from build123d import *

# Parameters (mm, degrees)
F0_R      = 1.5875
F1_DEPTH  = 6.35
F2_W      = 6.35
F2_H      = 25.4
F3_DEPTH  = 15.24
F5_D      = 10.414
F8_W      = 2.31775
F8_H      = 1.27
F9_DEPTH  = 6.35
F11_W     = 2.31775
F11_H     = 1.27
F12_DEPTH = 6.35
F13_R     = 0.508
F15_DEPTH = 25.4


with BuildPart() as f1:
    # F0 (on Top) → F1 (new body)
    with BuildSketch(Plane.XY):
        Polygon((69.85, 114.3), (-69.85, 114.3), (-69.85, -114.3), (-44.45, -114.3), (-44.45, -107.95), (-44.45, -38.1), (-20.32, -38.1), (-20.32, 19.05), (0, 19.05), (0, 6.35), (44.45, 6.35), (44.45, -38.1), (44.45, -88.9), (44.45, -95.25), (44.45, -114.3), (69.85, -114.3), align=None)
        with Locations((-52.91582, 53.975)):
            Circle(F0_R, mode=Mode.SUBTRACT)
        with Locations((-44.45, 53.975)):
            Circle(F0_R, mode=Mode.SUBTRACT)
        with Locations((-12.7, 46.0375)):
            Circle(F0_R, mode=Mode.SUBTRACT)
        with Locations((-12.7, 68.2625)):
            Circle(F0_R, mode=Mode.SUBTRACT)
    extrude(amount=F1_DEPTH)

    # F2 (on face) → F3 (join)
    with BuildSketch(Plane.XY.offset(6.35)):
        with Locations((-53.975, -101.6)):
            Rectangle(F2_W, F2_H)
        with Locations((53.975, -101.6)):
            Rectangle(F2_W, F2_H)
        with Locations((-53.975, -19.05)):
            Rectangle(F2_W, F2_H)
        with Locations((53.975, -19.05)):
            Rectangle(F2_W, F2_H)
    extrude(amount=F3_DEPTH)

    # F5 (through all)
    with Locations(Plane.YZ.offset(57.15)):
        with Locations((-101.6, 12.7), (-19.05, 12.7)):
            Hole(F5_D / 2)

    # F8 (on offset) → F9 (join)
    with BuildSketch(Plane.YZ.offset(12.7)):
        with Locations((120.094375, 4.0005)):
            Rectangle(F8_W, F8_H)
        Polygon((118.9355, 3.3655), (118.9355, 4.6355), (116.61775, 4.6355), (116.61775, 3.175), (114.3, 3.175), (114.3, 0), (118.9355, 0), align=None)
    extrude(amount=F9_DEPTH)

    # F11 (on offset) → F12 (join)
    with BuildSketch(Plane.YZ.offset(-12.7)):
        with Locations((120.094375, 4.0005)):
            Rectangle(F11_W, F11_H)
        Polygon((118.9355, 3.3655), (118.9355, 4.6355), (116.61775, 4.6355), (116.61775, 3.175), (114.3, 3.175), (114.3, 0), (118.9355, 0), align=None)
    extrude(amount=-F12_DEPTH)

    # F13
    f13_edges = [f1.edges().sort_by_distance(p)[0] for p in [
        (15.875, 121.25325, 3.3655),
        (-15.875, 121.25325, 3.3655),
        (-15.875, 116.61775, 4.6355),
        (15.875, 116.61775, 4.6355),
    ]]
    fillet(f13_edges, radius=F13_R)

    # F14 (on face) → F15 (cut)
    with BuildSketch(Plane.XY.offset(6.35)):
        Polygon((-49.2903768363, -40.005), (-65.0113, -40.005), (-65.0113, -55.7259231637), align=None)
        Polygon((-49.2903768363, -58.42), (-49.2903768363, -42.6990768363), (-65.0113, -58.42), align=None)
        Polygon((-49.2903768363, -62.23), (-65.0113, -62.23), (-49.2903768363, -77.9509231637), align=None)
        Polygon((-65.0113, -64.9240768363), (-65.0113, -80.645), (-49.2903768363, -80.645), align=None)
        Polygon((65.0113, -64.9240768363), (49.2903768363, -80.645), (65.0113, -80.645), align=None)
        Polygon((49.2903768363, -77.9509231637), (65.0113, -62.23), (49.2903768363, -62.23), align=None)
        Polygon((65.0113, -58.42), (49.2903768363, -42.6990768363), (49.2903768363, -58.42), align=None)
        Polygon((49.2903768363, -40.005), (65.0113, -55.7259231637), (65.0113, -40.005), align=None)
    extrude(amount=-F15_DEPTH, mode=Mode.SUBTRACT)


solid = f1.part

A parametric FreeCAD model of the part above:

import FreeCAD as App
import Part
import Sketcher
from FreeCAD import Vector
Q = App.Units.Quantity


def edges_at(feature, points):
    """Names of the edges that pass closest to the given points."""
    edges = feature.Shape.Edges
    near = lambda p: min(range(len(edges)), key=lambda i: edges[i].distToShape(Part.Vertex(*p))[0])
    return sorted({f"Edge{near(p) + 1}" for p in points})


def add_polygon(sketch, points):
    """Adds a closed chain of lines whose ends are joined by coincident constraints."""
    first, n = sketch.GeometryCount, len(points)
    for a, b in zip(points, points[1:] + points[:1]):
        sketch.addGeometry(Part.LineSegment(App.Vector(*a, 0), App.Vector(*b, 0)), False)
    for i in range(n):
        sketch.addConstraint(Sketcher.Constraint("Coincident", first + i, 2, first + (i + 1) % n, 1))

doc = App.newDocument("Part")
params = doc.addObject("Spreadsheet::Sheet", "Params")
for row, (alias, value) in enumerate([
    ("sketch1_width", "1 in"),
    ("sketch1_height", "9 in"),
    ("sketch1_height2", "3 in"),
    ("sketch1_diameter", "0.125 in"),
    ("sketch1_width2", "5.5 in"),
    ("pad1_length", "0.25 in"),
    ("sketch2_height", "1 in"),
    ("sketch2_width", "0.25 in"),
    ("pad2_length", "0.6 in"),
    ("sketch3_diameter", "0.41 in"),
    ("hole_diameter", "0.41 in"),
    ("sketch4_height", "0.05 in"),
    ("sketch4_height2", "0.125 in"),
    ("pad3_length", "0.25 in"),
    ("sketch5_height", "0.05 in"),
    ("sketch5_height2", "0.125 in"),
    ("pad4_length", "0.25 in"),
    ("fillet_radius", "0.02 in"),
    ("pocket1_length", "1 in"),
], start=1):
    params.set(f"A{row}", alias)
    params.set(f"B{row}", "=" + value)
    params.setAlias(f"B{row}", alias)

body = doc.addObject("PartDesign::Body", "Body")

# Sketch on XY plane
sketch1 = doc.addObject("Sketcher::SketchObject", "Sketch")
body.addObject(sketch1)
sketch1.AttachmentSupport = (doc.XY_Plane, [""])
sketch1.MapMode = "FlatFace"
add_polygon(sketch1, [(69.8, 114.3), (-69.8, 114.3), (-69.8, -114.3), (-44.5, -114.3), (-44.5, -38.1), (-20.3, -38.1), (-20.3, 19.1), (0, 19.1), (0, 6.3), (44.5, 6.3), (44.5, -114.3), (69.8, -114.3)])  # lines 0-11
sketch1.addGeometry(Part.Circle(Vector(-52.9, 54, 0), Vector(0, 0, 1), 1.6), False)  # 12
sketch1.addGeometry(Part.Circle(Vector(-44.5, 54, 0), Vector(0, 0, 1), 1.6), False)  # 13
sketch1.addGeometry(Part.Circle(Vector(-12.7, 46, 0), Vector(0, 0, 1), 1.6), False)  # 14
sketch1.addGeometry(Part.Circle(Vector(-12.7, 68.3, 0), Vector(0, 0, 1), 1.6), False)  # 15
sketch1.addConstraint(Sketcher.Constraint("Horizontal", 0))
sketch1.addConstraint(Sketcher.Constraint("Vertical", 1))
sketch1.addConstraint(Sketcher.Constraint("Horizontal", 2))
sketch1.addConstraint(Sketcher.Constraint("Vertical", 3))
sketch1.addConstraint(Sketcher.Constraint("Horizontal", 4))
sketch1.addConstraint(Sketcher.Constraint("Vertical", 5))
sketch1.addConstraint(Sketcher.Constraint("Horizontal", 6))
sketch1.addConstraint(Sketcher.Constraint("Vertical", 7))
sketch1.addConstraint(Sketcher.Constraint("Horizontal", 8))
sketch1.addConstraint(Sketcher.Constraint("Vertical", 9))
sketch1.addConstraint(Sketcher.Constraint("Horizontal", 10))
sketch1.addConstraint(Sketcher.Constraint("Vertical", 11))
sketch1.addConstraint(Sketcher.Constraint("Equal", 12, 13))
sketch1.addConstraint(Sketcher.Constraint("Equal", 13, 14))
sketch1.addConstraint(Sketcher.Constraint("Equal", 14, 15))
sketch1.addConstraint(Sketcher.Constraint("Symmetric", 0, 2, 10, 2, -1, 1))
sketch1.addConstraint(Sketcher.Constraint("Symmetric", 2, 2, 9, 2, -2))
sketch1.addConstraint(Sketcher.Constraint("PointOnObject", 6, 2, -2))
sketch1.addConstraint(Sketcher.Constraint("Horizontal", 12, 3, 13, 3))
sketch1.addConstraint(Sketcher.Constraint("Vertical", 14, 3, 15, 3))
sketch1.addConstraint(Sketcher.Constraint("Vertical", 13, 3, 2, 2))
sketch1.addConstraint(Sketcher.Constraint("DistanceX", 2, 1, 2, 2, Q("1 in")))
sketch1.addConstraint(Sketcher.Constraint("DistanceY", 1, 2, 1, 1, Q("9 in")))
sketch1.addConstraint(Sketcher.Constraint("DistanceY", 3, 1, 3, 2, Q("3 in")))
sketch1.addConstraint(Sketcher.Constraint("Diameter", 12, Q("0.125 in")))
sketch1.addConstraint(Sketcher.Constraint("DistanceX", 0, 2, 0, 1, Q("5.5 in")))
sketch1.addConstraint(Sketcher.Constraint("DistanceX", 6, 1, 6, 2, Q("0.8 in")))
sketch1.addConstraint(Sketcher.Constraint("DistanceY", 7, 2, 7, 1, Q("0.5 in")))
sketch1.addConstraint(Sketcher.Constraint("DistanceY", 5, 1, 5, 2, Q("2.25 in")))
sketch1.addConstraint(Sketcher.Constraint("DistanceX", 14, 3, -1, 1, Q("0.5 in")))
sketch1.addConstraint(Sketcher.Constraint("DistanceY", -1, 1, 12, 3, Q("2.125 in")))
sketch1.addConstraint(Sketcher.Constraint("DistanceY", -1, 1, 14, 3, Q("1.8125 in")))
sketch1.addConstraint(Sketcher.Constraint("DistanceY", -1, 1, 15, 3, Q("2.6875 in")))
sketch1.addConstraint(Sketcher.Constraint("DistanceX", 12, 3, -1, 1, Q("2.0833 in")))
sketch1.setExpression("Constraints[33]", "Params.sketch1_width")
sketch1.setExpression("Constraints[34]", "Params.sketch1_height")
sketch1.setExpression("Constraints[35]", "Params.sketch1_height2")
sketch1.setExpression("Constraints[36]", "Params.sketch1_diameter")
sketch1.setExpression("Constraints[37]", "Params.sketch1_width2")
pad1 = doc.addObject("PartDesign::Pad", "Pad")
body.addObject(pad1)
pad1.Profile = sketch1
pad1.setExpression("Length", "Params.pad1_length")

# Sketch on XY plane
sketch2 = doc.addObject("Sketcher::SketchObject", "Sketch001")
body.addObject(sketch2)
sketch2.AttachmentSupport = (doc.XY_Plane, [""])
sketch2.MapMode = "FlatFace"
sketch2.AttachmentOffset = App.Placement(Vector(0, 0, 0.25 * 25.4), App.Rotation())
add_polygon(sketch2, [(-57, -89), (-57, -114), (-51, -114), (-51, -89)])  # lines 0-3
add_polygon(sketch2, [(51, -89), (51, -114), (57, -114), (57, -89)])  # lines 4-7
add_polygon(sketch2, [(-57, -6), (-57, -32), (-51, -32), (-51, -6)])  # lines 8-11
add_polygon(sketch2, [(51, -6), (51, -32), (57, -32), (57, -6)])  # lines 12-15
sketch2.addConstraint(Sketcher.Constraint("Vertical", 0))
sketch2.addConstraint(Sketcher.Constraint("Horizontal", 1))
sketch2.addConstraint(Sketcher.Constraint("Vertical", 2))
sketch2.addConstraint(Sketcher.Constraint("Horizontal", 3))
sketch2.addConstraint(Sketcher.Constraint("Vertical", 4))
sketch2.addConstraint(Sketcher.Constraint("Horizontal", 5))
sketch2.addConstraint(Sketcher.Constraint("Vertical", 6))
sketch2.addConstraint(Sketcher.Constraint("Horizontal", 7))
sketch2.addConstraint(Sketcher.Constraint("Vertical", 8))
sketch2.addConstraint(Sketcher.Constraint("Horizontal", 9))
sketch2.addConstraint(Sketcher.Constraint("Vertical", 10))
sketch2.addConstraint(Sketcher.Constraint("Horizontal", 11))
sketch2.addConstraint(Sketcher.Constraint("Vertical", 12))
sketch2.addConstraint(Sketcher.Constraint("Horizontal", 13))
sketch2.addConstraint(Sketcher.Constraint("Vertical", 14))
sketch2.addConstraint(Sketcher.Constraint("Horizontal", 15))
sketch2.addConstraint(Sketcher.Constraint("Symmetric", 1, 2, 4, 2, -2))
sketch2.addConstraint(Sketcher.Constraint("Symmetric", 3, 2, 6, 2, -2))
sketch2.addConstraint(Sketcher.Constraint("Symmetric", 9, 2, 12, 2, -2))
sketch2.addConstraint(Sketcher.Constraint("Symmetric", 11, 2, 14, 2, -2))
sketch2.addConstraint(Sketcher.Constraint("Vertical", 3, 2, 8, 2))
sketch2.addConstraint(Sketcher.Constraint("Vertical", 2, 2, 9, 2))
sketch2.addConstraint(Sketcher.Constraint("Equal", 6, 8))
sketch2.addConstraint(Sketcher.Constraint("DistanceY", 0, 2, 0, 1, Q("1 in")))
sketch2.addConstraint(Sketcher.Constraint("DistanceX", 1, 2, -1, 1, Q("2 in")))
sketch2.addConstraint(Sketcher.Constraint("DistanceX", 1, 1, 1, 2, Q("0.25 in")))
sketch2.addConstraint(Sketcher.Constraint("DistanceY", 0, 2, -1, 1, Q("4.5 in")))
sketch2.addConstraint(Sketcher.Constraint("DistanceY", 8, 2, -1, 1, Q("1.25 in")))
sketch2.setExpression("Constraints[39]", "Params.sketch2_height")
sketch2.setExpression("Constraints[41]", "Params.sketch2_width")
pad2 = doc.addObject("PartDesign::Pad", "Pad001")
body.addObject(pad2)
pad2.Profile = sketch2
pad2.setExpression("Length", "Params.pad2_length")

# Sketch on YZ plane
sketch3 = doc.addObject("Sketcher::SketchObject", "Sketch002")
body.addObject(sketch3)
sketch3.AttachmentSupport = (doc.YZ_Plane, [""])
sketch3.MapMode = "FlatFace"
sketch3.AttachmentOffset = App.Placement(Vector(0, 0, 2.25 * 25.4), App.Rotation())
sketch3.addGeometry(Part.Circle(Vector(-102, 13, 0), Vector(0, 0, 1), 5), False)
sketch3.addGeometry(Part.Circle(Vector(-19, 13, 0), Vector(0, 0, 1), 5), False)
sketch3.addConstraint(Sketcher.Constraint("Equal", 0, 1))
sketch3.addConstraint(Sketcher.Constraint("Horizontal", 0, 3, 1, 3))
sketch3.addConstraint(Sketcher.Constraint("Diameter", 0, Q("0.41 in")))
sketch3.addConstraint(Sketcher.Constraint("DistanceX", 0, 3, -1, 1, Q("4 in")))
sketch3.addConstraint(Sketcher.Constraint("DistanceY", -1, 1, 0, 3, Q("0.5 in")))
sketch3.addConstraint(Sketcher.Constraint("DistanceX", 1, 3, -1, 1, Q("0.75 in")))
sketch3.setExpression("Constraints[2]", "Params.sketch3_diameter")
doc.recompute()
hole = doc.addObject("PartDesign::Hole", "Hole")
body.addObject(hole)
hole.Profile = sketch3
hole.ThreadType = "None"
hole.setExpression("Diameter", "Params.hole_diameter")
hole.DepthType = "ThroughAll"

# Sketch on YZ plane
sketch4 = doc.addObject("Sketcher::SketchObject", "Sketch003")
body.addObject(sketch4)
sketch4.AttachmentSupport = (doc.YZ_Plane, [""])
sketch4.MapMode = "FlatFace"
sketch4.AttachmentOffset = App.Placement(Vector(0, 0, 0.5 * 25.4), App.Rotation())
add_polygon(sketch4, [(118.9, 3.4), (121.3, 3.4), (121.3, 4.6), (116.6, 4.6), (116.6, 3.2), (114.3, 3.2), (114.3, 0), (118.9, 0)])  # lines 0-7
sketch4.addConstraint(Sketcher.Constraint("Horizontal", 0))
sketch4.addConstraint(Sketcher.Constraint("Vertical", 1))
sketch4.addConstraint(Sketcher.Constraint("Horizontal", 2))
sketch4.addConstraint(Sketcher.Constraint("Vertical", 3))
sketch4.addConstraint(Sketcher.Constraint("Horizontal", 4))
sketch4.addConstraint(Sketcher.Constraint("Vertical", 5))
sketch4.addConstraint(Sketcher.Constraint("Horizontal", 6))
sketch4.addConstraint(Sketcher.Constraint("Vertical", 7))
sketch4.addConstraint(Sketcher.Constraint("PointOnObject", 5, 2, -1))
sketch4.addConstraint(Sketcher.Constraint("Equal", 0, 4))
sketch4.addConstraint(Sketcher.Constraint("DistanceY", 1, 1, 1, 2, Q("0.05 in")))
sketch4.addConstraint(Sketcher.Constraint("DistanceX", -1, 1, 4, 2, Q("4.5 in")))
sketch4.addConstraint(Sketcher.Constraint("DistanceY", 5, 2, 5, 1, Q("0.125 in")))
sketch4.addConstraint(Sketcher.Constraint("DistanceX", 2, 2, 2, 1, Q("0.1825 in")))
sketch4.addConstraint(Sketcher.Constraint("DistanceY", 3, 2, 3, 1, Q("0.0575 in")))
sketch4.addConstraint(Sketcher.Constraint("DistanceX", 0, 1, 0, 2, Q("2.31775 mm")))
sketch4.setExpression("Constraints[18]", "Params.sketch4_height")
sketch4.setExpression("Constraints[20]", "Params.sketch4_height2")
pad3 = doc.addObject("PartDesign::Pad", "Pad002")
body.addObject(pad3)
pad3.Profile = sketch4
pad3.setExpression("Length", "Params.pad3_length")

# Sketch on YZ plane
sketch5 = doc.addObject("Sketcher::SketchObject", "Sketch004")
body.addObject(sketch5)
sketch5.AttachmentSupport = (doc.YZ_Plane, [""])
sketch5.MapMode = "FlatFace"
sketch5.AttachmentOffset = App.Placement(Vector(0, 0, -0.5 * 25.4), App.Rotation())
add_polygon(sketch5, [(118.9, 3.4), (121.3, 3.4), (121.3, 4.6), (116.6, 4.6), (116.6, 3.2), (114.3, 3.2), (114.3, 0), (118.9, 0)])  # lines 0-7
sketch5.addConstraint(Sketcher.Constraint("Horizontal", 0))
sketch5.addConstraint(Sketcher.Constraint("Vertical", 1))
sketch5.addConstraint(Sketcher.Constraint("Horizontal", 2))
sketch5.addConstraint(Sketcher.Constraint("Vertical", 3))
sketch5.addConstraint(Sketcher.Constraint("Horizontal", 4))
sketch5.addConstraint(Sketcher.Constraint("Vertical", 5))
sketch5.addConstraint(Sketcher.Constraint("Horizontal", 6))
sketch5.addConstraint(Sketcher.Constraint("Vertical", 7))
sketch5.addConstraint(Sketcher.Constraint("PointOnObject", 5, 2, -1))
sketch5.addConstraint(Sketcher.Constraint("Equal", 0, 4))
sketch5.addConstraint(Sketcher.Constraint("DistanceY", 1, 1, 1, 2, Q("0.05 in")))
sketch5.addConstraint(Sketcher.Constraint("DistanceX", -1, 1, 4, 2, Q("4.5 in")))
sketch5.addConstraint(Sketcher.Constraint("DistanceY", 5, 2, 5, 1, Q("0.125 in")))
sketch5.addConstraint(Sketcher.Constraint("DistanceX", 2, 2, 2, 1, Q("0.1825 in")))
sketch5.addConstraint(Sketcher.Constraint("DistanceY", 3, 2, 3, 1, Q("0.0575 in")))
sketch5.addConstraint(Sketcher.Constraint("DistanceX", 0, 1, 0, 2, Q("2.31775 mm")))
sketch5.setExpression("Constraints[18]", "Params.sketch5_height")
sketch5.setExpression("Constraints[20]", "Params.sketch5_height2")
pad4 = doc.addObject("PartDesign::Pad", "Pad003")
body.addObject(pad4)
pad4.Profile = sketch5
pad4.setExpression("Length", "Params.pad4_length")
pad4.Reversed = True
doc.recompute()

fillet = doc.addObject("PartDesign::Fillet", "Fillet")
body.addObject(fillet)
fillet.Base = (pad4, edges_at(pad4, [
    (15.875, 121.253, 3.365),
    (-15.875, 121.253, 3.365),
    (-15.875, 116.618, 4.636),
    (15.875, 116.618, 4.636),
]))
fillet.setExpression("Radius", "Params.fillet_radius")

# Sketch on XY plane
sketch6 = doc.addObject("Sketcher::SketchObject", "Sketch005")
body.addObject(sketch6)
sketch6.AttachmentSupport = (doc.XY_Plane, [""])
sketch6.MapMode = "FlatFace"
sketch6.AttachmentOffset = App.Placement(Vector(0, 0, 0.25 * 25.4), App.Rotation())
add_polygon(sketch6, [(-49, -40), (-65, -40), (-65, -56)])  # lines 0-2
add_polygon(sketch6, [(-49, -58), (-49, -43), (-65, -58)])  # lines 3-5
add_polygon(sketch6, [(-49, -62), (-65, -62), (-49, -78)])  # lines 6-8
add_polygon(sketch6, [(-65, -65), (-65, -81), (-49, -81)])  # lines 9-11
add_polygon(sketch6, [(65, -65), (49, -81), (65, -81)])  # lines 12-14
add_polygon(sketch6, [(49, -78), (65, -62), (49, -62)])  # lines 15-17
add_polygon(sketch6, [(65, -58), (49, -43), (49, -58)])  # lines 18-20
add_polygon(sketch6, [(49, -40), (65, -56), (65, -40)])  # lines 21-23
sketch6.addConstraint(Sketcher.Constraint("Horizontal", 0))
sketch6.addConstraint(Sketcher.Constraint("Vertical", 1))
sketch6.addConstraint(Sketcher.Constraint("Vertical", 3))
sketch6.addConstraint(Sketcher.Constraint("Horizontal", 5))
sketch6.addConstraint(Sketcher.Constraint("Horizontal", 6))
sketch6.addConstraint(Sketcher.Constraint("Vertical", 8))
sketch6.addConstraint(Sketcher.Constraint("Vertical", 9))
sketch6.addConstraint(Sketcher.Constraint("Horizontal", 10))
sketch6.addConstraint(Sketcher.Constraint("Horizontal", 13))
sketch6.addConstraint(Sketcher.Constraint("Vertical", 14))
sketch6.addConstraint(Sketcher.Constraint("Horizontal", 16))
sketch6.addConstraint(Sketcher.Constraint("Vertical", 17))
sketch6.addConstraint(Sketcher.Constraint("Vertical", 19))
sketch6.addConstraint(Sketcher.Constraint("Horizontal", 20))
sketch6.addConstraint(Sketcher.Constraint("Vertical", 22))
sketch6.addConstraint(Sketcher.Constraint("Horizontal", 23))
sketch6.addConstraint(Sketcher.Constraint("Symmetric", 10, 2, 12, 2, -2))
sketch6.addConstraint(Sketcher.Constraint("Symmetric", 11, 2, 14, 2, -2))
sketch6.addConstraint(Sketcher.Constraint("Symmetric", 6, 2, 15, 2, -2))
sketch6.addConstraint(Sketcher.Constraint("Symmetric", 7, 2, 17, 2, -2))
sketch6.addConstraint(Sketcher.Constraint("Symmetric", 3, 2, 18, 2, -2))
sketch6.addConstraint(Sketcher.Constraint("Symmetric", 4, 2, 20, 2, -2))
sketch6.addConstraint(Sketcher.Constraint("Symmetric", 1, 2, 21, 2, -2))
sketch6.addConstraint(Sketcher.Constraint("Symmetric", 2, 2, 23, 2, -2))
sketch6.addConstraint(Sketcher.Constraint("Parallel", 2, 4))
sketch6.addConstraint(Sketcher.Constraint("Perpendicular", 4, 7))
sketch6.addConstraint(Sketcher.Constraint("Parallel", 7, 11))
sketch6.addConstraint(Sketcher.Constraint("Perpendicular", 11, 12))
sketch6.addConstraint(Sketcher.Constraint("Vertical", 2, 2, 3, 2))
sketch6.addConstraint(Sketcher.Constraint("Vertical", 1, 2, 4, 2))
sketch6.addConstraint(Sketcher.Constraint("Vertical", 4, 2, 6, 2))
sketch6.addConstraint(Sketcher.Constraint("Vertical", 5, 2, 7, 2))
sketch6.addConstraint(Sketcher.Constraint("Vertical", 6, 2, 9, 2))
sketch6.addConstraint(Sketcher.Constraint("Vertical", 8, 2, 10, 2))
sketch6.addConstraint(Sketcher.Constraint("DistanceY", 4, 2, -1, 1, Q("2.3 in")))
sketch6.addConstraint(Sketcher.Constraint("DistanceY", 6, 2, -1, 1, Q("2.45 in")))
sketch6.addConstraint(Sketcher.Constraint("DistanceY", 0, 2, -1, 1, Q("1.575 in")))
sketch6.addConstraint(Sketcher.Constraint("DistanceY", 9, 2, -1, 1, Q("3.175 in")))
sketch6.addConstraint(Sketcher.Constraint("DistanceX", 0, 2, -1, 1, Q("2.5595 in")))
sketch6.addConstraint(Sketcher.Constraint("DistanceX", 0, 2, 0, 1, Q("15.720923 mm")))
pocket1 = doc.addObject("PartDesign::Pocket", "Pocket")
body.addObject(pocket1)
pocket1.Profile = sketch6
pocket1.setExpression("Length", "Params.pocket1_length")

doc.recompute()
